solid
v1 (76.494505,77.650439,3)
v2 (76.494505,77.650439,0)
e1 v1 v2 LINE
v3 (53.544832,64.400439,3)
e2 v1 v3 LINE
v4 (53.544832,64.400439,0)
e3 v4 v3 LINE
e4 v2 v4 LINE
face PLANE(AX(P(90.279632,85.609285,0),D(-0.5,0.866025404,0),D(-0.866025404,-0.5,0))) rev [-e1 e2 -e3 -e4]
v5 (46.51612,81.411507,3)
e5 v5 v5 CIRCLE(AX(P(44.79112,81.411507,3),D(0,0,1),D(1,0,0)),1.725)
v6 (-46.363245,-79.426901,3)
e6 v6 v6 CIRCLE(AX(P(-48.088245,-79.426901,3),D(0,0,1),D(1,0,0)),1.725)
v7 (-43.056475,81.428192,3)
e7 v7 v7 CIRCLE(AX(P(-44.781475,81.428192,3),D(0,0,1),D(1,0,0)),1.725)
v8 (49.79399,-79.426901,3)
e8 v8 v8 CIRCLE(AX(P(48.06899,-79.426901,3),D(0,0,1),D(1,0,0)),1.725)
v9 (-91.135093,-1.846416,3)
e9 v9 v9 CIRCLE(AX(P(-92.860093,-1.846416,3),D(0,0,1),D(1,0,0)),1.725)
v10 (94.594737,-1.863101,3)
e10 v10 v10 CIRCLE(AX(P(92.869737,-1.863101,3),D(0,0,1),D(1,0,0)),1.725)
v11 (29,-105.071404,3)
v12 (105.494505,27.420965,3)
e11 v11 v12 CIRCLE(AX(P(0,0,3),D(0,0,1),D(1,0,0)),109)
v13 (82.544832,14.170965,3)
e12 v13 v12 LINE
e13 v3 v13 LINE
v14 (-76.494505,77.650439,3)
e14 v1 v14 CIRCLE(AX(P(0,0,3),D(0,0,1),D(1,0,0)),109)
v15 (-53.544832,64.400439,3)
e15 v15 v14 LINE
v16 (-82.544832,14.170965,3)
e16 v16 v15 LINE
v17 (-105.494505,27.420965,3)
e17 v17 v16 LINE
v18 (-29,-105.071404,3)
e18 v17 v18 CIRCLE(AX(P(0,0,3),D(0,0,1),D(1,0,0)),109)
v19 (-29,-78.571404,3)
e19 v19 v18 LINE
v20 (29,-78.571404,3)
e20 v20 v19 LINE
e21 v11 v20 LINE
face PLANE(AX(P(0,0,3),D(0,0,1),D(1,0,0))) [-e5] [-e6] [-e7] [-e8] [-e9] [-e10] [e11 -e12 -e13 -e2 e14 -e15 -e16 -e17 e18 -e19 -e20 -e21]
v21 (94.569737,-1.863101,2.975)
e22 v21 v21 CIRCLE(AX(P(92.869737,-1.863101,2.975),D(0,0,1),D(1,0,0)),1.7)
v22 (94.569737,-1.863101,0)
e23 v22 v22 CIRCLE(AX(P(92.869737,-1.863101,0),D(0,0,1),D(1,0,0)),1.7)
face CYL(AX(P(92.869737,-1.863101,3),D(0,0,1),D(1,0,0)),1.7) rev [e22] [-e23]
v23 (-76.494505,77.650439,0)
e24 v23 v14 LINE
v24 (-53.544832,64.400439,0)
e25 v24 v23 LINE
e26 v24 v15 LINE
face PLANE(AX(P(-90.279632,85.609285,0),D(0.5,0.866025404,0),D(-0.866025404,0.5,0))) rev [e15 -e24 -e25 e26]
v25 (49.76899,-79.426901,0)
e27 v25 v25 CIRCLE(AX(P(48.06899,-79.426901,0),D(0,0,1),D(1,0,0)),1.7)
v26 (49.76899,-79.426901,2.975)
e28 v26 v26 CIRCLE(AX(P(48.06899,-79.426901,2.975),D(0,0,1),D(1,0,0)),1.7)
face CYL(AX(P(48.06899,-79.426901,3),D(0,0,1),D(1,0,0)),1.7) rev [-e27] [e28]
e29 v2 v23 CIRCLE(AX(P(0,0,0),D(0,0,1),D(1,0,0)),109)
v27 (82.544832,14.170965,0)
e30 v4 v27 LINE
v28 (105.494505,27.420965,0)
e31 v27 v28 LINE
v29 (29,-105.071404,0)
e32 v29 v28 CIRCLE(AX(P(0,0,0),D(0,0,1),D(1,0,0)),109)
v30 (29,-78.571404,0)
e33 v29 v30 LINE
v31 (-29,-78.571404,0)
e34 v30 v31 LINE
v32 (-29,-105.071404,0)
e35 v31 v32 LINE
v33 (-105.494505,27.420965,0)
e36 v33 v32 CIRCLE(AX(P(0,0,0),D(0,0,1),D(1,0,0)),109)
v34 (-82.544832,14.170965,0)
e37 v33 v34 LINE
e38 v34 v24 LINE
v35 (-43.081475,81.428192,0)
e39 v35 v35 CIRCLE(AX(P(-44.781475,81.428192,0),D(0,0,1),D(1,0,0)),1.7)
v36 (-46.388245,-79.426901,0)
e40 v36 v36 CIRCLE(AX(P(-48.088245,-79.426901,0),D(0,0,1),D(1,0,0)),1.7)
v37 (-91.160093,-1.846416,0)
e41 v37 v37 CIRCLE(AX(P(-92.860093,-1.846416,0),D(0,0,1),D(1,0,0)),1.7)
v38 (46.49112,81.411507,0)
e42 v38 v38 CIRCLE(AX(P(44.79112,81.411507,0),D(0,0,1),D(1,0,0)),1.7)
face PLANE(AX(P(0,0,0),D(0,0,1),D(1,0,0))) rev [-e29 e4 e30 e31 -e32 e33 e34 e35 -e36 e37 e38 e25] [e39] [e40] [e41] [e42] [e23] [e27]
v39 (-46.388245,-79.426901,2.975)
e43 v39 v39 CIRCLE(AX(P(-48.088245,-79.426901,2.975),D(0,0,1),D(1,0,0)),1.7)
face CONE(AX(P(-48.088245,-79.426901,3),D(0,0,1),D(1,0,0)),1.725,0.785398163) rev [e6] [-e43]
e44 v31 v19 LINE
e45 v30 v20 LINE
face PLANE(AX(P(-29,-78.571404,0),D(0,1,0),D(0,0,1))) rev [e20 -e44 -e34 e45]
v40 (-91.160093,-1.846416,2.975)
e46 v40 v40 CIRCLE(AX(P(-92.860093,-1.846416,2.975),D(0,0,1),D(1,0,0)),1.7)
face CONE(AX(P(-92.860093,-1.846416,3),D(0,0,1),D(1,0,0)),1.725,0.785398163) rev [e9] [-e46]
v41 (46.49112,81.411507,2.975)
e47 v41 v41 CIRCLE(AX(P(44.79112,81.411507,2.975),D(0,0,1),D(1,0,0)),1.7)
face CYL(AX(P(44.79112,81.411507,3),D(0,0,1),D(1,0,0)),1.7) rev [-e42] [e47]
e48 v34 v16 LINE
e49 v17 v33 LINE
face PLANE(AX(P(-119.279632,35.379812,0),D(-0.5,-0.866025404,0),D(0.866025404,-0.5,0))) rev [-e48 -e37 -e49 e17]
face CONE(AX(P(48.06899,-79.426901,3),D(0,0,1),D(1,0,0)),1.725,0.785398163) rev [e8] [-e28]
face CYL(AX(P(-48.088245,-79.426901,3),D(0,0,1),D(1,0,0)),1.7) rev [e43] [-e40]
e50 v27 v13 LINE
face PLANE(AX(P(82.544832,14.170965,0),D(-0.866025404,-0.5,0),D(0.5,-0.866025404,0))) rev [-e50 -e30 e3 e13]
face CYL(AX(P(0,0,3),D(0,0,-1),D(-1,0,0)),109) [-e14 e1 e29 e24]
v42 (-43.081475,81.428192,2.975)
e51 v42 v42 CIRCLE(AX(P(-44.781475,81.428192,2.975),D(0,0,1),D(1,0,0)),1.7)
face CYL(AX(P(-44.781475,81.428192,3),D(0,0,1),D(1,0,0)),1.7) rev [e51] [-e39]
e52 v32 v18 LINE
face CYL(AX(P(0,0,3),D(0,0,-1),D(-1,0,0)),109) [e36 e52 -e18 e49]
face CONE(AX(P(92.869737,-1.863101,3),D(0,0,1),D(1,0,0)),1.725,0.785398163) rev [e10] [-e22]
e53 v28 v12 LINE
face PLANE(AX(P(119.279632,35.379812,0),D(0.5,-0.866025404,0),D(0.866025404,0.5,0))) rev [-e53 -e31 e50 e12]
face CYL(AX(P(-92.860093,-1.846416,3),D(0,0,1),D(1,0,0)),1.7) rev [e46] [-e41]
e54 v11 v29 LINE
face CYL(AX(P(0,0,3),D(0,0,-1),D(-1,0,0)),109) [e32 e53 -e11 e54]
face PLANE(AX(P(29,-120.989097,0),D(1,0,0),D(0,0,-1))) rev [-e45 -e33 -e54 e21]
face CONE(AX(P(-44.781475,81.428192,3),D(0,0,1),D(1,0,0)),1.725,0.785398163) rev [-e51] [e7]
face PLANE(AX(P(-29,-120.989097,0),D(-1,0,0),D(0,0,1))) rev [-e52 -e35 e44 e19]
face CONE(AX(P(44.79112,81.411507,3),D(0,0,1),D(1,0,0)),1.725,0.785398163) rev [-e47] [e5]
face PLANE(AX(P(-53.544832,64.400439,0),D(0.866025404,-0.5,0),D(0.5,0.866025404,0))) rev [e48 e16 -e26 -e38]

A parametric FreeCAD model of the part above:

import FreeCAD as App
import Part
import Sketcher
from FreeCAD import Vector
Q = App.Units.Quantity


def add_polygon(sketch, points):
    """Adds a closed chain of lines whose ends are joined by coincident constraints."""
    first, n = sketch.GeometryCount, len(points)
    for a, b in zip(points, points[1:] + points[:1]):
        sketch.addGeometry(Part.LineSegment(App.Vector(*a, 0), App.Vector(*b, 0)), False)
    for i in range(n):
        sketch.addConstraint(Sketcher.Constraint("Coincident", first + i, 2, first + (i + 1) % n, 1))

doc = App.newDocument("Part")
body = doc.addObject("PartDesign::Body", "Body")

# Sketch on XY plane
sketch1 = body.newObject("Sketcher::SketchObject", "Sketch")
sketch1.AttachmentSupport = (doc.getObject("XY_Plane"), [""])
sketch1.MapMode = "FlatFace"
sketch1.addGeometry(Part.Circle(Vector(0, 0, 0), Vector(0, 0, 1), 109), False)
sketch1.addConstraint(Sketcher.Constraint("Coincident", 0, 3, -1, 1))
sketch1.addConstraint(Sketcher.Constraint("Diameter", 0, Q("218 mm")))
pad1 = body.newObject("PartDesign::Pad", "Pad")
pad1.Profile = sketch1
pad1.Length = 3

# Sketch on XY plane
sketch2 = body.newObject("Sketcher::SketchObject", "Sketch001")
sketch2.AttachmentSupport = (doc.getObject("XY_Plane"), [""])
sketch2.MapMode = "FlatFace"
sketch2.AttachmentOffset = App.Placement(Vector(0, 0, 3), App.Rotation())
add_polygon(sketch2, [(-29, -79), (-29, -121), (29, -121), (29, -79)])  # lines 0-3
add_polygon(sketch2, [(-90, 86), (-119, 35), (-83, 14), (-54, 64)])  # lines 4-7
add_polygon(sketch2, [(119, 35), (90, 86), (54, 64), (83, 14)])  # lines 8-11
sketch2.addConstraint(Sketcher.Constraint("Vertical", 0))
sketch2.addConstraint(Sketcher.Constraint("Horizontal", 1))
sketch2.addConstraint(Sketcher.Constraint("Vertical", 2))
sketch2.addConstraint(Sketcher.Constraint("Horizontal", 3))
sketch2.addConstraint(Sketcher.Constraint("Symmetric", 7, 2, 8, 2, -2))
sketch2.addConstraint(Sketcher.Constraint("Symmetric", 6, 2, 9, 2, -2))
sketch2.addConstraint(Sketcher.Constraint("Symmetric", 5, 2, 10, 2, -2))
sketch2.addConstraint(Sketcher.Constraint("Symmetric", 4, 2, 11, 2, -2))
sketch2.addConstraint(Sketcher.Constraint("Perpendicular", 4, 5))
sketch2.addConstraint(Sketcher.Constraint("Perpendicular", 5, 6))
sketch2.addConstraint(Sketcher.Constraint("Perpendicular", 6, 7))
sketch2.addConstraint(Sketcher.Constraint("DistanceX", 1, 1, 1, 2, Q("58 mm")))
sketch2.addConstraint(Sketcher.Constraint("Angle", 4, Q("-120 deg")))
sketch2.addConstraint(Sketcher.Constraint("Distance", 4, Q("58 mm")))
sketch2.addConstraint(Sketcher.Constraint("DistanceX", 0, 2, -1, 1, Q("29 mm")))
sketch2.addConstraint(Sketcher.Constraint("DistanceX", 4, 2, 5, 2, Q("36.7348 mm")))
sketch2.addConstraint(Sketcher.Constraint("DistanceY", 0, 2, 0, 1, Q("42.417693 mm")))
sketch2.addConstraint(Sketcher.Constraint("DistanceX", 4, 2, -1, 1, Q("119.279632 mm")))
sketch2.addConstraint(Sketcher.Constraint("DistanceY", -1, 1, 4, 2, Q("35.379812 mm")))
sketch2.addConstraint(Sketcher.Constraint("DistanceY", 0, 2, 4, 2, Q("156.368909 mm")))
pocket1 = body.newObject("PartDesign::Pocket", "Pocket")
pocket1.Profile = sketch2
pocket1.Length = 3

# Sketch on XY plane
sketch3 = body.newObject("Sketcher::SketchObject", "Sketch002")
sketch3.AttachmentSupport = (doc.getObject("XY_Plane"), [""])
sketch3.MapMode = "FlatFace"
sketch3.AttachmentOffset = App.Placement(Vector(0, 0, 3), App.Rotation())
sketch3.addGeometry(Part.Circle(Vector(-48.1, -79.4, 0), Vector(0, 0, 1), 1.7), False)
sketch3.addGeometry(Part.Circle(Vector(48.1, -79.4, 0), Vector(0, 0, 1), 1.7), False)
sketch3.addConstraint(Sketcher.Constraint("Equal", 0, 1))
sketch3.addConstraint(Sketcher.Constraint("Horizontal", 0, 3, 1, 3))
sketch3.addConstraint(Sketcher.Constraint("Diameter", 0, Q("3.4 mm")))
sketch3.addConstraint(Sketcher.Constraint("DistanceY", 0, 3, -1, 1, Q("79.426901 mm")))
sketch3.addConstraint(Sketcher.Constraint("DistanceX", -1, 1, 1, 3, Q("48.06899 mm")))
sketch3.addConstraint(Sketcher.Constraint("DistanceX", 0, 3, -1, 1, Q("48.088245 mm")))
doc.recompute()
hole = body.newObject("PartDesign::Hole", "Hole")
hole.Profile = sketch3
hole.ThreadType = "None"
hole.Diameter = 3.4
hole.DepthType = "ThroughAll"
hole.HoleCutType = "Countersink"
hole.HoleCutDiameter = 3.45
hole.HoleCutCountersinkAngle = 90
doc.recompute()

datumline = body.newObject("PartDesign::Line", "DatumLine")
datumline.Placement = App.Placement(Vector(0.000006, 0.046063, 0), App.Rotation(Vector(0, 0, 1), Vector(0, 0, 1)))
polarpattern = body.newObject("PartDesign::PolarPattern", "PolarPattern")
polarpattern.Originals = [hole]
polarpattern.Axis = (datumline, [""])
polarpattern.Angle = 360
polarpattern.Occurrences = 3
body.Tip = polarpattern

doc.recompute()
